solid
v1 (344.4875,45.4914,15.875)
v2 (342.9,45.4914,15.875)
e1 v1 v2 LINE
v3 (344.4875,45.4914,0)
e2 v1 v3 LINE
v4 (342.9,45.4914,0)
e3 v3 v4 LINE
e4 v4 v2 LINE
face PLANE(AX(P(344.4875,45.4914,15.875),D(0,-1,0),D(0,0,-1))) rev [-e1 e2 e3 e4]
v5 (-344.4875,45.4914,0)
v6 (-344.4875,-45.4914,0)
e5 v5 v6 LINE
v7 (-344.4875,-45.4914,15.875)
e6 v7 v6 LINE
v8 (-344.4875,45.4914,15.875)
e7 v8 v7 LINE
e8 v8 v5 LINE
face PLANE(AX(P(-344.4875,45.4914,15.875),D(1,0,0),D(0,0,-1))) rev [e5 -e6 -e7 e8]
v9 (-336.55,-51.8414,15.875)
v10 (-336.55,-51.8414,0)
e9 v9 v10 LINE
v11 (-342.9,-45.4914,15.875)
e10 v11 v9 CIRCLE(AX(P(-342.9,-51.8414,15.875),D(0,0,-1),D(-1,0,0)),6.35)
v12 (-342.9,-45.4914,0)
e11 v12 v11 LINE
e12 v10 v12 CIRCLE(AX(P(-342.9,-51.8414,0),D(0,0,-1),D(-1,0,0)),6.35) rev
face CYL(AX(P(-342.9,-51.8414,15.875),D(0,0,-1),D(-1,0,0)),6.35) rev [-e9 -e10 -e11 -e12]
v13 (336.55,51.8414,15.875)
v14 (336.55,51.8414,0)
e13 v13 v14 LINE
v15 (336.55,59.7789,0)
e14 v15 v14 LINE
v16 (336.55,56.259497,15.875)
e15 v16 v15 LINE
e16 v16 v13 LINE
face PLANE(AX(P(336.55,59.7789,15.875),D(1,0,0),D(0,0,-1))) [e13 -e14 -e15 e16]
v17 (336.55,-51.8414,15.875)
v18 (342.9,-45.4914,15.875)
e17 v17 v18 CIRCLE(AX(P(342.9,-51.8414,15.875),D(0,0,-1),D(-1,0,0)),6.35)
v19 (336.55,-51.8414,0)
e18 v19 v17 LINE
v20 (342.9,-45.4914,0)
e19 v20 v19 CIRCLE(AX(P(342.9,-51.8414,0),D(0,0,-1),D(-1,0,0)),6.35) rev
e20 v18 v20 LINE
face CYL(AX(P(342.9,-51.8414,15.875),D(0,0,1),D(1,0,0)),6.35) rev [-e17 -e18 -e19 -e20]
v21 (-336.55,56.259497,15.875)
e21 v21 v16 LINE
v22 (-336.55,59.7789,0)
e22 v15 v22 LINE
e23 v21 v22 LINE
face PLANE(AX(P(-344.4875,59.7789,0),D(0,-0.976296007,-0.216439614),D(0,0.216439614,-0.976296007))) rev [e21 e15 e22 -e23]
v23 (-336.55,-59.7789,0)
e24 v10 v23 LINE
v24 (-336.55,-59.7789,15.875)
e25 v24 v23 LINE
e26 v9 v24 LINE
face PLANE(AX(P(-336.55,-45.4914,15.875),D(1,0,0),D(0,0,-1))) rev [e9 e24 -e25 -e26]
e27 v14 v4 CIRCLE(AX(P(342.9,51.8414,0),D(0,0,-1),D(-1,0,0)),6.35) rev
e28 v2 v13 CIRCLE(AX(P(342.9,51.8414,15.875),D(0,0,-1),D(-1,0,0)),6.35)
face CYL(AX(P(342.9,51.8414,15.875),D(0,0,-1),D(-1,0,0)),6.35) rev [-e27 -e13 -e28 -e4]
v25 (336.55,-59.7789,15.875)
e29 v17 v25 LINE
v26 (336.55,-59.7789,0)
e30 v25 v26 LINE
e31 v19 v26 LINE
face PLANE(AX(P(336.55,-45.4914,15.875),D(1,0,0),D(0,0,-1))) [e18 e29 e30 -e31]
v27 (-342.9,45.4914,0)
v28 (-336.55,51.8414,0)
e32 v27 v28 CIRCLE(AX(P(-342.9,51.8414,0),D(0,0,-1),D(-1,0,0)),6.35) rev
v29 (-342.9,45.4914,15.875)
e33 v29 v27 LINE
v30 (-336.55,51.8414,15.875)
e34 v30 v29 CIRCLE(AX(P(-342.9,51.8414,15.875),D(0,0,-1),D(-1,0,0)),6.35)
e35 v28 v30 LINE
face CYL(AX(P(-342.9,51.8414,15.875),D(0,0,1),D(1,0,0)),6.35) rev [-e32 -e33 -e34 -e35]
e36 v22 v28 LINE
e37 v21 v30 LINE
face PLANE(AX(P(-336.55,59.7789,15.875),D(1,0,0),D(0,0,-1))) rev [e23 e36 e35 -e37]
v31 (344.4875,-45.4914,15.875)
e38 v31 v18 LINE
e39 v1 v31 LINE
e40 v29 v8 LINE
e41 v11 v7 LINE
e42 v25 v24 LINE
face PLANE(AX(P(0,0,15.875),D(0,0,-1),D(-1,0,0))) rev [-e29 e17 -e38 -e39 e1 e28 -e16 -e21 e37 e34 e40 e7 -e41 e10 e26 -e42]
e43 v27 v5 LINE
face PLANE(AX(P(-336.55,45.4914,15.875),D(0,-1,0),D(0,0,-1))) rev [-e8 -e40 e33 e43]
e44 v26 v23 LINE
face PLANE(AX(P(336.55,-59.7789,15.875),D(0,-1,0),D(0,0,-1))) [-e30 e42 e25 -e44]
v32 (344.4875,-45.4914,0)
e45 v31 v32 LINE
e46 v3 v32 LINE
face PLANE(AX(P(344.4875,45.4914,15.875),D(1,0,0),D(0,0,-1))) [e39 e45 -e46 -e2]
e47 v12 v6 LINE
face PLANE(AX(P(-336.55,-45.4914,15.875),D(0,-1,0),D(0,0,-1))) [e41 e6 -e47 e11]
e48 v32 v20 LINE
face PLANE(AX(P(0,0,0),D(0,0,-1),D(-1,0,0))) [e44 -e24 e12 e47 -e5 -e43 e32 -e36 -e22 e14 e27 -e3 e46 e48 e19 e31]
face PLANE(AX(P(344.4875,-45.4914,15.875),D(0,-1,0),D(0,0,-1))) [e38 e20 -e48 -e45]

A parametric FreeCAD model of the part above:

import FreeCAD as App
import Part
import Sketcher

V = App.Vector
Q = App.Units.Quantity


def edges_at(feature, points):
    """Names of the edges that pass closest to the given points."""
    edges = feature.Shape.Edges
    near = lambda p: min(range(len(edges)), key=lambda i: edges[i].distToShape(Part.Vertex(*p))[0])
    return sorted({f"Edge{near(p) + 1}" for p in points})


def add_polygon(sketch, points):
    """Adds a closed chain of lines whose ends are joined by coincident constraints."""
    first, n = sketch.GeometryCount, len(points)
    for a, b in zip(points, points[1:] + points[:1]):
        sketch.addGeometry(Part.LineSegment(App.Vector(*a, 0), App.Vector(*b, 0)), False)
    for i in range(n):
        sketch.addConstraint(Sketcher.Constraint("Coincident", first + i, 2, first + (i + 1) % n, 1))

doc = App.newDocument("Part")
params = doc.addObject("Spreadsheet::Sheet", "Params")
for row, (alias, value) in enumerate([
    ("sketch1_width", "26.5 in"),
    ("sketch1_width2", "0.3125 in"),
    ("sketch1_height", "0.5625 in"),
    ("sketch1_height2", "3.582 in"),
    ("pad1_length", "0.625 in"),
    ("fillet_radius", "0.25 in"),
    ("sketch2_height", "0.625 in"),
], start=1):
    params.set(f"A{row}", alias)
    params.set(f"B{row}", "=" + value)
    params.setAlias(f"B{row}", alias)

body = doc.addObject("PartDesign::Body", "Body")

# Sketch on XY plane
sketch1 = doc.addObject("Sketcher::SketchObject", "Sketch")
body.addObject(sketch1)
sketch1.AttachmentSupport = (doc.XY_Plane, [""])
sketch1.MapMode = "FlatFace"
add_polygon(sketch1, [(-336.55, -45.4914), (-336.55, -59.7789), (336.55, -59.7789), (336.55, -45.4914), (344.4875, -45.4914), (344.4875, 45.4914), (336.55, 45.4914), (336.55, 59.7789), (-336.55, 59.7789), (-336.55, 45.4914), (-344.4875, 45.4914), (-344.4875, -45.4914)])  # lines 0-11
sketch1.addConstraint([
    Sketcher.Constraint("Vertical", 0),
    Sketcher.Constraint("Horizontal", 1),
    Sketcher.Constraint("Vertical", 2),
    Sketcher.Constraint("Horizontal", 3),
    Sketcher.Constraint("Vertical", 4),
    Sketcher.Constraint("Horizontal", 5),
    Sketcher.Constraint("Vertical", 6),
    Sketcher.Constraint("Horizontal", 7),
    Sketcher.Constraint("Vertical", 8),
    Sketcher.Constraint("Horizontal", 9),
    Sketcher.Constraint("Vertical", 10),
    Sketcher.Constraint("Horizontal", 11),
    Sketcher.Constraint("Symmetric", 0, 2, 6, 2, -1, 1),
    Sketcher.Constraint("Symmetric", 2, 2, 8, 2, -1, 1),
    Sketcher.Constraint("Symmetric", 4, 2, 10, 2, -1, 1),
    Sketcher.Constraint("Symmetric", 5, 2, 8, 2, -2),
    Sketcher.Constraint("DistanceX", 1, 1, 1, 2, Q("26.5 in")),
    Sketcher.Constraint("DistanceX", 3, 1, 3, 2, Q("0.3125 in")),
    Sketcher.Constraint("DistanceY", 0, 2, 0, 1, Q("0.5625 in")),
    Sketcher.Constraint("DistanceY", 4, 1, 4, 2, Q("3.582 in")),
])
sketch1.setExpression("Constraints[28]", "Params.sketch1_width")
sketch1.setExpression("Constraints[29]", "Params.sketch1_width2")
sketch1.setExpression("Constraints[30]", "Params.sketch1_height")
sketch1.setExpression("Constraints[31]", "Params.sketch1_height2")
pad1 = doc.addObject("PartDesign::Pad", "Pad")
body.addObject(pad1)
pad1.Profile = sketch1
pad1.setExpression("Length", "Params.pad1_length")
doc.recompute()

fillet = doc.addObject("PartDesign::Fillet", "Fillet")
body.addObject(fillet)
fillet.Base = (pad1, edges_at(pad1, [
    (-336.55, 45.491, 7.938),
    (-336.55, -45.491, 7.938),
    (336.55, -45.491, 7.938),
    (336.55, 45.491, 7.938),
]))
fillet.setExpression("Radius", "Params.fillet_radius")

# Sketch on YZ plane
sketch2 = doc.addObject("Sketcher::SketchObject", "Sketch001")
body.addObject(sketch2)
sketch2.AttachmentSupport = (doc.YZ_Plane, [""])
sketch2.MapMode = "FlatFace"
sketch2.AttachmentOffset = App.Placement(V(0, 0, 13.5625 * 25.4), App.Rotation())
add_polygon(sketch2, [(56.259497, 15.875), (59.7789, 0), (59.7789, 15.875)])  # lines 0-2
sketch2.addConstraint([
    Sketcher.Constraint("Vertical", 1),
    Sketcher.Constraint("Horizontal", 2),
    Sketcher.Constraint("PointOnObject", 0, 2, -1),
    Sketcher.Constraint("Angle", 0, Q("-77.5 deg")),
    Sketcher.Constraint("DistanceY", 1, 1, 1, 2, Q("0.625 in")),
    Sketcher.Constraint("DistanceX", -1, 1, 0, 2, Q("2.3535 in")),
])
sketch2.setExpression("Constraints[7]", "Params.sketch2_height")
pocket1 = doc.addObject("PartDesign::Pocket", "Pocket")
body.addObject(pocket1)
pocket1.Profile = sketch2
pocket1.Type = "ThroughAll"
pocket1.Midplane = True

doc.recompute()
